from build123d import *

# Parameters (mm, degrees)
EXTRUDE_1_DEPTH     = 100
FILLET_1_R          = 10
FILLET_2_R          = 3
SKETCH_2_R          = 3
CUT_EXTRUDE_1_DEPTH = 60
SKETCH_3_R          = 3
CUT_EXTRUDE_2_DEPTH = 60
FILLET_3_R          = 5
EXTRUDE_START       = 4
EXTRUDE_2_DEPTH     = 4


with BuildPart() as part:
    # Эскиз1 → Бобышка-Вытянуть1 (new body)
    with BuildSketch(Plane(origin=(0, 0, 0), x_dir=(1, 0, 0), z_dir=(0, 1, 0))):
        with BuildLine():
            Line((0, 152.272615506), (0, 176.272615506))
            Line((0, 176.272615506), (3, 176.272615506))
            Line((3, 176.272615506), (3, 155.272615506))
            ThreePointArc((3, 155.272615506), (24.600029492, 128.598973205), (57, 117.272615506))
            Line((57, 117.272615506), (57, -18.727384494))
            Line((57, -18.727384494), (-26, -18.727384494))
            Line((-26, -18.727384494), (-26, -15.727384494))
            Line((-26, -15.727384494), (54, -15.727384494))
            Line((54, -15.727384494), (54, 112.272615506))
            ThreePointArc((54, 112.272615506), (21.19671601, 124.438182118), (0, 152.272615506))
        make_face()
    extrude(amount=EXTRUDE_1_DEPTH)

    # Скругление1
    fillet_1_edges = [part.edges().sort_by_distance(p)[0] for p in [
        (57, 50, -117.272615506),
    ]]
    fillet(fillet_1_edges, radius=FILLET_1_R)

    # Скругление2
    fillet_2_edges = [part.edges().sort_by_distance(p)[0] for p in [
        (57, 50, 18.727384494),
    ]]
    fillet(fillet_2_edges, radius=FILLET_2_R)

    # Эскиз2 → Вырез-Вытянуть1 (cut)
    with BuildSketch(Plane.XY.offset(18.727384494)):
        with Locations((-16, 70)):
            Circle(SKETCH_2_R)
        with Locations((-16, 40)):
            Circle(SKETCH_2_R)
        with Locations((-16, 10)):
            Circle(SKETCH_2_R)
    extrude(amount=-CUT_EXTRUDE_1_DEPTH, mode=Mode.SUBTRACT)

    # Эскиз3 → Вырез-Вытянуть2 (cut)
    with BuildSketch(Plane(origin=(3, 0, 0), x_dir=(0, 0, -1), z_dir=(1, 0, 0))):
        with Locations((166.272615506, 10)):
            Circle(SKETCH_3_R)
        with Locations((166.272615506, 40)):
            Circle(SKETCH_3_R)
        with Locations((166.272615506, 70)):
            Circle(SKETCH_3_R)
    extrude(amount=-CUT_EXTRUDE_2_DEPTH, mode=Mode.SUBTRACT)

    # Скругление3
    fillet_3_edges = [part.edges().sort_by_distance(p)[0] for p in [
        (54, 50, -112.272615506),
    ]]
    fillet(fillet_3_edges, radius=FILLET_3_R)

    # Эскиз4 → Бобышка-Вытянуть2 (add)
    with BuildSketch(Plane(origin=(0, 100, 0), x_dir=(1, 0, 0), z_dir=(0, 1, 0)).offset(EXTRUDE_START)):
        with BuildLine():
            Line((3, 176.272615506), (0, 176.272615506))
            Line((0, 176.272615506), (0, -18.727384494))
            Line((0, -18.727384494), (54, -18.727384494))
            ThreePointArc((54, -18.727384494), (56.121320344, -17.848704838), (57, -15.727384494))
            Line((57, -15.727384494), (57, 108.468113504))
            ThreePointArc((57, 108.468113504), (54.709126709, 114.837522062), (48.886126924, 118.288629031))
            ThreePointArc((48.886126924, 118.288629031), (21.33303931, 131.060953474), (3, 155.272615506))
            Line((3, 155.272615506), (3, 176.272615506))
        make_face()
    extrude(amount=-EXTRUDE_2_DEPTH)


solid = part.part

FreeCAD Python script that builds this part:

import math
import FreeCAD as App
import Part
import Sketcher
Q = App.Units.Quantity


def edges_at(feature, points):
    """Names of the edges that pass closest to the given points."""
    edges = feature.Shape.Edges
    near = lambda p: min(range(len(edges)), key=lambda i: edges[i].distToShape(Part.Vertex(*p))[0])
    return sorted({f"Edge{near(p) + 1}" for p in points})

doc = App.newDocument("Part")
params = doc.addObject("Spreadsheet::Sheet", "Params")
for row, (alias, value) in enumerate([
    ("sketch1_width", "80 mm"),
    ("sketch1_width2", "83 mm"),
    ("sketch1_width3", "3 mm"),
    ("sketch1_height", "24 mm"),
    ("sketch1_height2", "128 mm"),
    ("pad1_length", "100 mm"),
    ("fillet_radius", "10 mm"),
    ("fillet2_radius", "3 mm"),
    ("sketch2_diameter", "6 mm"),
    ("pocket1_length", "60 mm"),
    ("sketch3_diameter", "6 mm"),
    ("pocket2_length", "60 mm"),
    ("fillet3_radius", "5 mm"),
    ("sketch4_radius", "3 mm"),
    ("sketch4_radius2", "10 mm"),
    ("sketch4_width", "3 mm"),
    ("sketch4_width2", "54 mm"),
    ("sketch4_height", "195 mm"),
    ("pad2_length", "4 mm"),
], start=1):
    params.set(f"A{row}", alias)
    params.set(f"B{row}", "=" + value)
    params.setAlias(f"B{row}", alias)

body = doc.addObject("PartDesign::Body", "Body")

sketch1 = body.newObject("Sketcher::SketchObject", "Sketch")
sketch1.AttachmentSupport = (doc.getObject("XZ_Plane"), [""])
sketch1.MapMode = "FlatFace"
sketch1.addGeometry(Part.LineSegment(App.Vector(0, -176.3, 0), App.Vector(0, -152.3, 0)), False)
sketch1.addGeometry(Part.ArcOfCircle(Part.Circle(App.Vector(58.6, -174.9, 0), App.Vector(0, 0, 1), 62.8), math.radians(94), math.radians(159)), False)
sketch1.addGeometry(Part.LineSegment(App.Vector(54, -112.3, 0), App.Vector(54, 15.7, 0)), False)
sketch1.addGeometry(Part.LineSegment(App.Vector(54, 15.7, 0), App.Vector(-26, 15.7, 0)), False)
sketch1.addGeometry(Part.LineSegment(App.Vector(-26, 15.7, 0), App.Vector(-26, 18.7, 0)), False)
sketch1.addGeometry(Part.LineSegment(App.Vector(-26, 18.7, 0), App.Vector(57, 18.7, 0)), False)
sketch1.addGeometry(Part.LineSegment(App.Vector(57, 18.7, 0), App.Vector(57, -117.3, 0)), False)
sketch1.addGeometry(Part.ArcOfCircle(Part.Circle(App.Vector(60.7, -179.9, 0), App.Vector(0, 0, 1), 62.8), math.radians(93), math.radians(157)), False)
sketch1.addGeometry(Part.LineSegment(App.Vector(3, -155.3, 0), App.Vector(3, -176.3, 0)), False)
sketch1.addGeometry(Part.LineSegment(App.Vector(3, -176.3, 0), App.Vector(0, -176.3, 0)), False)
sketch1.addConstraint(Sketcher.Constraint("Coincident", 0, 2, 1, 2))
sketch1.addConstraint(Sketcher.Constraint("Coincident", 1, 1, 2, 1))
sketch1.addConstraint(Sketcher.Constraint("Coincident", 2, 2, 3, 1))
sketch1.addConstraint(Sketcher.Constraint("Coincident", 3, 2, 4, 1))
sketch1.addConstraint(Sketcher.Constraint("Coincident", 4, 2, 5, 1))
sketch1.addConstraint(Sketcher.Constraint("Coincident", 5, 2, 6, 1))
sketch1.addConstraint(Sketcher.Constraint("Coincident", 6, 2, 7, 1))
sketch1.addConstraint(Sketcher.Constraint("Coincident", 7, 2, 8, 1))
sketch1.addConstraint(Sketcher.Constraint("Coincident", 8, 2, 9, 1))
sketch1.addConstraint(Sketcher.Constraint("Coincident", 9, 2, 0, 1))
sketch1.addConstraint(Sketcher.Constraint("Vertical", 0))
sketch1.addConstraint(Sketcher.Constraint("Vertical", 2))
sketch1.addConstraint(Sketcher.Constraint("Horizontal", 3))
sketch1.addConstraint(Sketcher.Constraint("Vertical", 4))
sketch1.addConstraint(Sketcher.Constraint("Horizontal", 5))
sketch1.addConstraint(Sketcher.Constraint("Vertical", 6))
sketch1.addConstraint(Sketcher.Constraint("Vertical", 8))
sketch1.addConstraint(Sketcher.Constraint("Horizontal", 9))
sketch1.addConstraint(Sketcher.Constraint("Equal", 1, 7))
sketch1.addConstraint(Sketcher.Constraint("PointOnObject", 0, 2, -2))
sketch1.addConstraint(Sketcher.Constraint("Equal", 9, 4))
sketch1.addConstraint(Sketcher.Constraint("DistanceX", 3, 2, 3, 1, Q("80 mm")))
sketch1.addConstraint(Sketcher.Constraint("DistanceX", 5, 1, 5, 2, Q("83 mm")))
sketch1.addConstraint(Sketcher.Constraint("DistanceX", 9, 2, 9, 1, Q("3 mm")))
sketch1.addConstraint(Sketcher.Constraint("DistanceY", 0, 1, 0, 2, Q("24 mm")))
sketch1.addConstraint(Sketcher.Constraint("DistanceY", 2, 1, 2, 2, Q("128 mm")))
sketch1.addConstraint(Sketcher.Constraint("DistanceY", 6, 2, 6, 1, Q("136 mm")))
sketch1.addConstraint(Sketcher.Constraint("DistanceY", 8, 2, 8, 1, Q("21 mm")))
sketch1.addConstraint(Sketcher.Constraint("DistanceX", -1, 1, 1, 1, Q("54 mm")))
sketch1.addConstraint(Sketcher.Constraint("DistanceY", 0, 2, 1, 1, Q("40 mm")))
sketch1.addConstraint(Sketcher.Constraint("Radius", 1, Q("62.774123 mm")))
sketch1.addConstraint(Sketcher.Constraint("DistanceY", 1, 3, -1, 1, Q("174.88078 mm")))
sketch1.setExpression("Constraints[21]", "Params.sketch1_width")
sketch1.setExpression("Constraints[22]", "Params.sketch1_width2")
sketch1.setExpression("Constraints[23]", "Params.sketch1_width3")
sketch1.setExpression("Constraints[24]", "Params.sketch1_height")
sketch1.setExpression("Constraints[25]", "Params.sketch1_height2")
pad1 = body.newObject("PartDesign::Pad", "Pad")
pad1.Profile = sketch1
pad1.setExpression("Length", "Params.pad1_length")
pad1.Reversed = True
doc.recompute()

fillet = body.newObject("PartDesign::Fillet", "Fillet")
fillet.Base = (pad1, edges_at(pad1, [(57, 50, -117.273)]))
fillet.setExpression("Radius", "Params.fillet_radius")
doc.recompute()

fillet2 = body.newObject("PartDesign::Fillet", "Fillet001")
fillet2.Base = (fillet, edges_at(fillet, [(57, 50, 18.727)]))
fillet2.setExpression("Radius", "Params.fillet2_radius")

sketch2 = body.newObject("Sketcher::SketchObject", "Sketch001")
sketch2.AttachmentSupport = (doc.getObject("XY_Plane"), [""])
sketch2.MapMode = "FlatFace"
sketch2.AttachmentOffset = App.Placement(App.Vector(0, 0, 18.727384), App.Rotation())
sketch2.addGeometry(Part.Circle(App.Vector(-16, 70, 0), App.Vector(0, 0, 1), 3), False)
sketch2.addGeometry(Part.Circle(App.Vector(-16, 40, 0), App.Vector(0, 0, 1), 3), False)
sketch2.addGeometry(Part.Circle(App.Vector(-16, 10, 0), App.Vector(0, 0, 1), 3), False)
sketch2.addConstraint(Sketcher.Constraint("Equal", 0, 1))
sketch2.addConstraint(Sketcher.Constraint("Equal", 1, 2))
sketch2.addConstraint(Sketcher.Constraint("Vertical", 0, 3, 1, 3))
sketch2.addConstraint(Sketcher.Constraint("Vertical", 1, 3, 2, 3))
sketch2.addConstraint(Sketcher.Constraint("Diameter", 0, Q("6 mm")))
sketch2.addConstraint(Sketcher.Constraint("DistanceX", 0, 3, -1, 1, Q("16 mm")))
sketch2.addConstraint(Sketcher.Constraint("DistanceY", -1, 1, 0, 3, Q("70 mm")))
sketch2.addConstraint(Sketcher.Constraint("DistanceY", -1, 1, 1, 3, Q("40 mm")))
sketch2.addConstraint(Sketcher.Constraint("DistanceY", -1, 1, 2, 3, Q("10 mm")))
sketch2.setExpression("Constraints[4]", "Params.sketch2_diameter")
pocket1 = body.newObject("PartDesign::Pocket", "Pocket")
pocket1.Profile = sketch2
pocket1.setExpression("Length", "Params.pocket1_length")

sketch3 = body.newObject("Sketcher::SketchObject", "Sketch002")
sketch3.AttachmentSupport = (doc.getObject("YZ_Plane"), [""])
sketch3.MapMode = "FlatFace"
sketch3.AttachmentOffset = App.Placement(App.Vector(0, 0, 3), App.Rotation())
sketch3.addGeometry(Part.Circle(App.Vector(10, -166.3, 0), App.Vector(0, 0, 1), 3), False)
sketch3.addGeometry(Part.Circle(App.Vector(40, -166.3, 0), App.Vector(0, 0, 1), 3), False)
sketch3.addGeometry(Part.Circle(App.Vector(70, -166.3, 0), App.Vector(0, 0, 1), 3), False)
sketch3.addConstraint(Sketcher.Constraint("Equal", 0, 1))
sketch3.addConstraint(Sketcher.Constraint("Equal", 1, 2))
sketch3.addConstraint(Sketcher.Constraint("Horizontal", 0, 3, 1, 3))
sketch3.addConstraint(Sketcher.Constraint("Horizontal", 1, 3, 2, 3))
sketch3.addConstraint(Sketcher.Constraint("Diameter", 0, Q("6 mm")))
sketch3.addConstraint(Sketcher.Constraint("DistanceX", -1, 1, 0, 3, Q("10 mm")))
sketch3.addConstraint(Sketcher.Constraint("DistanceX", -1, 1, 1, 3, Q("40 mm")))
sketch3.addConstraint(Sketcher.Constraint("DistanceX", -1, 1, 2, 3, Q("70 mm")))
sketch3.addConstraint(Sketcher.Constraint("DistanceY", 0, 3, -1, 1, Q("166.272616 mm")))
sketch3.setExpression("Constraints[4]", "Params.sketch3_diameter")
pocket2 = body.newObject("PartDesign::Pocket", "Pocket001")
pocket2.Profile = sketch3
pocket2.setExpression("Length", "Params.pocket2_length")
doc.recompute()

fillet3 = body.newObject("PartDesign::Fillet", "Fillet002")
fillet3.Base = (pocket2, edges_at(pocket2, [(54, 50, -112.273)]))
fillet3.setExpression("Radius", "Params.fillet3_radius")

sketch4 = body.newObject("Sketcher::SketchObject", "Sketch003")
sketch4.AttachmentSupport = (doc.getObject("XZ_Plane"), [""])
sketch4.MapMode = "FlatFace"
sketch4.AttachmentOffset = App.Placement(App.Vector(0, 0, -104), App.Rotation())
sketch4.addGeometry(Part.LineSegment(App.Vector(3, -176.3, 0), App.Vector(0, -176.3, 0)), False)
sketch4.addGeometry(Part.LineSegment(App.Vector(0, -176.3, 0), App.Vector(0, 18.7, 0)), False)
sketch4.addGeometry(Part.LineSegment(App.Vector(0, 18.7, 0), App.Vector(54, 18.7, 0)), False)
sketch4.addGeometry(Part.ArcOfCircle(Part.Circle(App.Vector(54, 15.7, 0), App.Vector(0, 0, 1), 3), math.radians(0), math.radians(90)), False)
sketch4.addGeometry(Part.LineSegment(App.Vector(57, 15.7, 0), App.Vector(57, -108.5, 0)), False)
sketch4.addGeometry(Part.ArcOfCircle(Part.Circle(App.Vector(47, -108.5, 0), App.Vector(0, 0, 1), 10), math.radians(-79), math.radians(0)), False)
sketch4.addGeometry(Part.ArcOfCircle(Part.Circle(App.Vector(60.7, -179.9, 0), App.Vector(0, 0, 1), 62.8), math.radians(101), math.radians(157)), False)
sketch4.addGeometry(Part.LineSegment(App.Vector(3, -155.3, 0), App.Vector(3, -176.3, 0)), False)
sketch4.addConstraint(Sketcher.Constraint("Coincident", 0, 2, 1, 1))
sketch4.addConstraint(Sketcher.Constraint("Coincident", 1, 2, 2, 1))
sketch4.addConstraint(Sketcher.Constraint("Tangent", 2, 2, 3, 2))
sketch4.addConstraint(Sketcher.Constraint("Tangent", 3, 1, 4, 1))
sketch4.addConstraint(Sketcher.Constraint("Tangent", 4, 2, 5, 2))
sketch4.addConstraint(Sketcher.Constraint("Tangent", 5, 1, 6, 1))
sketch4.addConstraint(Sketcher.Constraint("Coincident", 6, 2, 7, 1))
sketch4.addConstraint(Sketcher.Constraint("Coincident", 7, 2, 0, 1))
sketch4.addConstraint(Sketcher.Constraint("Horizontal", 0))
sketch4.addConstraint(Sketcher.Constraint("Vertical", 1))
sketch4.addConstraint(Sketcher.Constraint("Horizontal", 2))
sketch4.addConstraint(Sketcher.Constraint("Vertical", 4))
sketch4.addConstraint(Sketcher.Constraint("Vertical", 7))
sketch4.addConstraint(Sketcher.Constraint("PointOnObject", 0, 2, -2))
sketch4.addConstraint(Sketcher.Constraint("Radius", 3, Q("3 mm")))
sketch4.addConstraint(Sketcher.Constraint("Radius", 5, Q("10 mm")))
sketch4.addConstraint(Sketcher.Constraint("DistanceX", 0, 2, 0, 1, Q("3 mm")))
sketch4.addConstraint(Sketcher.Constraint("DistanceX", 2, 1, 2, 2, Q("54 mm")))
sketch4.addConstraint(Sketcher.Constraint("DistanceY", 1, 1, 1, 2, Q("195 mm")))
sketch4.addConstraint(Sketcher.Constraint("DistanceY", 7, 2, 7, 1, Q("21 mm")))
sketch4.addConstraint(Sketcher.Constraint("Radius", 6, Q("62.774123 mm")))
sketch4.addConstraint(Sketcher.Constraint("DistanceY", 5, 3, 3, 3, Q("124.195498 mm")))
sketch4.addConstraint(Sketcher.Constraint("DistanceY", 5, 1, -1, 1, Q("118.288629 mm")))
sketch4.setExpression("Constraints[14]", "Params.sketch4_radius")
sketch4.setExpression("Constraints[15]", "Params.sketch4_radius2")
sketch4.setExpression("Constraints[16]", "Params.sketch4_width")
sketch4.setExpression("Constraints[17]", "Params.sketch4_width2")
sketch4.setExpression("Constraints[18]", "Params.sketch4_height")
pad2 = body.newObject("PartDesign::Pad", "Pad001")
pad2.Profile = sketch4
pad2.setExpression("Length", "Params.pad2_length")

doc.recompute()
